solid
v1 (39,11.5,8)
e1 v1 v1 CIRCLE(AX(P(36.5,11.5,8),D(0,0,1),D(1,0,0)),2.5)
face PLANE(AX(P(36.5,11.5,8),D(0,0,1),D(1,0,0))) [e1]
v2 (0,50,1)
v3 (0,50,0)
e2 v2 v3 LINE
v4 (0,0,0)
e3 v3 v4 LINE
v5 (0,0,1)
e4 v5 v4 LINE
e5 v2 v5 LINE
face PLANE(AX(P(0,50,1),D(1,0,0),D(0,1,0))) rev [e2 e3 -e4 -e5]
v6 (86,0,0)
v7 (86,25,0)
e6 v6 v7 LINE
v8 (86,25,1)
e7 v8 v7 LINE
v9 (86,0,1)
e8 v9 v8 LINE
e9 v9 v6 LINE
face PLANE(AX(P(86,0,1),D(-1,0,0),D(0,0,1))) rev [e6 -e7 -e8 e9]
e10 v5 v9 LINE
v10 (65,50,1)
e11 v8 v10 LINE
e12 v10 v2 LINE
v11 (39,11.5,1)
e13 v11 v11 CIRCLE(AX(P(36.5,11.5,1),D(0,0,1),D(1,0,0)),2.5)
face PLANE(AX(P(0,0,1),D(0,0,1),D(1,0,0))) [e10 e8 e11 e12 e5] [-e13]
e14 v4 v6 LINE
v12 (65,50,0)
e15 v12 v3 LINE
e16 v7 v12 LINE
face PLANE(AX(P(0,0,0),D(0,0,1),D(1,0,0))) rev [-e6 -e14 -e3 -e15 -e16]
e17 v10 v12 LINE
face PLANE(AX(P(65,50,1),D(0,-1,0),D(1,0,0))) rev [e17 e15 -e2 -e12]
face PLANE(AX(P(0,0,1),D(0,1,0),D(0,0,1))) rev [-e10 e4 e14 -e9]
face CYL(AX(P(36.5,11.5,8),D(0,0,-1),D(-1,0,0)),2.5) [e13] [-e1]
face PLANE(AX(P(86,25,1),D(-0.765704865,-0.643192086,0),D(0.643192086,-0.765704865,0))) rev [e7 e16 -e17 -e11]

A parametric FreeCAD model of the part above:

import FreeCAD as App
import Part
import Sketcher

doc = App.newDocument("Part")
body = doc.addObject("PartDesign::Body", "Body")

sketch1 = body.newObject("Sketcher::SketchObject", "Sketch")
sketch1.AttachmentSupport = (doc.getObject("XY_Plane"), [""])
sketch1.MapMode = "FlatFace"
sketch1.addGeometry(Part.LineSegment(App.Vector(0, 0, 0), App.Vector(86, 0, 0)), False)
sketch1.addGeometry(Part.LineSegment(App.Vector(86, 0, 0), App.Vector(86, 25, 0)), False)
sketch1.addGeometry(Part.LineSegment(App.Vector(86, 25, 0), App.Vector(65, 50, 0)), False)
sketch1.addGeometry(Part.LineSegment(App.Vector(65, 50, 0), App.Vector(0, 50, 0)), False)
sketch1.addGeometry(Part.LineSegment(App.Vector(0, 50, 0), App.Vector(0, 0, 0)), False)
sketch1.addConstraint(Sketcher.Constraint("Coincident", 0, 2, 1, 1))
sketch1.addConstraint(Sketcher.Constraint("Coincident", 1, 2, 2, 1))
sketch1.addConstraint(Sketcher.Constraint("Coincident", 2, 2, 3, 1))
sketch1.addConstraint(Sketcher.Constraint("Coincident", 3, 2, 4, 1))
sketch1.addConstraint(Sketcher.Constraint("Coincident", 4, 2, 0, 1))
sketch1.addConstraint(Sketcher.Constraint("Horizontal", 0))
sketch1.addConstraint(Sketcher.Constraint("Vertical", 1))
sketch1.addConstraint(Sketcher.Constraint("Horizontal", 3))
sketch1.addConstraint(Sketcher.Constraint("Vertical", 4))
sketch1.addConstraint(Sketcher.Constraint("Coincident", 4, 2, -1, 1))
sketch1.addConstraint(Sketcher.Constraint("DistanceX", 0, 1, 0, 2, 86.0))
sketch1.addConstraint(Sketcher.Constraint("DistanceX", 3, 2, 3, 1, 65.0))
sketch1.addConstraint(Sketcher.Constraint("DistanceY", 1, 1, 1, 2, 25.0))
sketch1.addConstraint(Sketcher.Constraint("DistanceY", 4, 2, 4, 1, 50.0))
pad1 = body.newObject("PartDesign::Pad", "Pad")
pad1.Profile = sketch1
pad1.Length = 1

sketch2 = body.newObject("Sketcher::SketchObject", "Sketch001")
sketch2.AttachmentSupport = (doc.getObject("XY_Plane"), [""])
sketch2.MapMode = "FlatFace"
sketch2.AttachmentOffset = App.Placement(App.Vector(0, 0, 1), App.Rotation())
sketch2.addGeometry(Part.Circle(App.Vector(36.5, 11.5, 0), App.Vector(0, 0, 1), 2.5), False)
sketch2.addConstraint(Sketcher.Constraint("Diameter", 0, 5.0))
sketch2.addConstraint(Sketcher.Constraint("DistanceX", -1, 1, 0, 3, 36.5))
sketch2.addConstraint(Sketcher.Constraint("DistanceY", -1, 1, 0, 3, 11.5))
pad2 = body.newObject("PartDesign::Pad", "Pad001")
pad2.Profile = sketch2
pad2.Length = 7

doc.recompute()
